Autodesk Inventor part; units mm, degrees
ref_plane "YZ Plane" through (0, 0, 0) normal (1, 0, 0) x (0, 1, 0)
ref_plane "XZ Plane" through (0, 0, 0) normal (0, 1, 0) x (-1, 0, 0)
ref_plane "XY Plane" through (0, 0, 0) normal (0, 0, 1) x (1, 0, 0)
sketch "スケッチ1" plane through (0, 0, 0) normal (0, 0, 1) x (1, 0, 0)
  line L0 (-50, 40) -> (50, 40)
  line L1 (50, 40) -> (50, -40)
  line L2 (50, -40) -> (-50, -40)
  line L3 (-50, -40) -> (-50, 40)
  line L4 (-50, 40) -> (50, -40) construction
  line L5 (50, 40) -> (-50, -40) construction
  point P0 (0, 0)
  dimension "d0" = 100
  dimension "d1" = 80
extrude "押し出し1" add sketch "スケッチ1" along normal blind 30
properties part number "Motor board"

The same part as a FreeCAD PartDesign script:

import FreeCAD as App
import Part
import Sketcher
from FreeCAD import Vector
Q = App.Units.Quantity

doc = App.newDocument("Part")
body = doc.addObject("PartDesign::Body", "Body")

sketch1 = body.newObject("Sketcher::SketchObject", "Sketch")
sketch1.AttachmentSupport = (doc.getObject("XY_Plane"), [""])
sketch1.MapMode = "FlatFace"
sketch1.addGeometry([
    Part.LineSegment(Vector(50, 40, 0), Vector(-50, 40, 0)),
    Part.LineSegment(Vector(-50, 40, 0), Vector(-50, -40, 0)),
    Part.LineSegment(Vector(-50, -40, 0), Vector(50, -40, 0)),
    Part.LineSegment(Vector(50, -40, 0), Vector(50, 40, 0)),
], False)
sketch1.addConstraint([
    Sketcher.Constraint("Coincident", 0, 2, 1, 1),
    Sketcher.Constraint("Coincident", 1, 2, 2, 1),
    Sketcher.Constraint("Coincident", 2, 2, 3, 1),
    Sketcher.Constraint("Coincident", 3, 2, 0, 1),
    Sketcher.Constraint("Horizontal", 0),
    Sketcher.Constraint("Vertical", 1),
    Sketcher.Constraint("Horizontal", 2),
    Sketcher.Constraint("Vertical", 3),
    Sketcher.Constraint("Symmetric", 0, 2, 2, 2, -1, 1),
    Sketcher.Constraint("DistanceX", 0, 2, 0, 1, Q("3.937 in")),
    Sketcher.Constraint("DistanceY", 1, 2, 1, 1, Q("3.1496 in")),
])
pad1 = body.newObject("PartDesign::Pad", "Pad")
pad1.Profile = sketch1
pad1.Length = Q("1.1811024 in")

doc.recompute()
